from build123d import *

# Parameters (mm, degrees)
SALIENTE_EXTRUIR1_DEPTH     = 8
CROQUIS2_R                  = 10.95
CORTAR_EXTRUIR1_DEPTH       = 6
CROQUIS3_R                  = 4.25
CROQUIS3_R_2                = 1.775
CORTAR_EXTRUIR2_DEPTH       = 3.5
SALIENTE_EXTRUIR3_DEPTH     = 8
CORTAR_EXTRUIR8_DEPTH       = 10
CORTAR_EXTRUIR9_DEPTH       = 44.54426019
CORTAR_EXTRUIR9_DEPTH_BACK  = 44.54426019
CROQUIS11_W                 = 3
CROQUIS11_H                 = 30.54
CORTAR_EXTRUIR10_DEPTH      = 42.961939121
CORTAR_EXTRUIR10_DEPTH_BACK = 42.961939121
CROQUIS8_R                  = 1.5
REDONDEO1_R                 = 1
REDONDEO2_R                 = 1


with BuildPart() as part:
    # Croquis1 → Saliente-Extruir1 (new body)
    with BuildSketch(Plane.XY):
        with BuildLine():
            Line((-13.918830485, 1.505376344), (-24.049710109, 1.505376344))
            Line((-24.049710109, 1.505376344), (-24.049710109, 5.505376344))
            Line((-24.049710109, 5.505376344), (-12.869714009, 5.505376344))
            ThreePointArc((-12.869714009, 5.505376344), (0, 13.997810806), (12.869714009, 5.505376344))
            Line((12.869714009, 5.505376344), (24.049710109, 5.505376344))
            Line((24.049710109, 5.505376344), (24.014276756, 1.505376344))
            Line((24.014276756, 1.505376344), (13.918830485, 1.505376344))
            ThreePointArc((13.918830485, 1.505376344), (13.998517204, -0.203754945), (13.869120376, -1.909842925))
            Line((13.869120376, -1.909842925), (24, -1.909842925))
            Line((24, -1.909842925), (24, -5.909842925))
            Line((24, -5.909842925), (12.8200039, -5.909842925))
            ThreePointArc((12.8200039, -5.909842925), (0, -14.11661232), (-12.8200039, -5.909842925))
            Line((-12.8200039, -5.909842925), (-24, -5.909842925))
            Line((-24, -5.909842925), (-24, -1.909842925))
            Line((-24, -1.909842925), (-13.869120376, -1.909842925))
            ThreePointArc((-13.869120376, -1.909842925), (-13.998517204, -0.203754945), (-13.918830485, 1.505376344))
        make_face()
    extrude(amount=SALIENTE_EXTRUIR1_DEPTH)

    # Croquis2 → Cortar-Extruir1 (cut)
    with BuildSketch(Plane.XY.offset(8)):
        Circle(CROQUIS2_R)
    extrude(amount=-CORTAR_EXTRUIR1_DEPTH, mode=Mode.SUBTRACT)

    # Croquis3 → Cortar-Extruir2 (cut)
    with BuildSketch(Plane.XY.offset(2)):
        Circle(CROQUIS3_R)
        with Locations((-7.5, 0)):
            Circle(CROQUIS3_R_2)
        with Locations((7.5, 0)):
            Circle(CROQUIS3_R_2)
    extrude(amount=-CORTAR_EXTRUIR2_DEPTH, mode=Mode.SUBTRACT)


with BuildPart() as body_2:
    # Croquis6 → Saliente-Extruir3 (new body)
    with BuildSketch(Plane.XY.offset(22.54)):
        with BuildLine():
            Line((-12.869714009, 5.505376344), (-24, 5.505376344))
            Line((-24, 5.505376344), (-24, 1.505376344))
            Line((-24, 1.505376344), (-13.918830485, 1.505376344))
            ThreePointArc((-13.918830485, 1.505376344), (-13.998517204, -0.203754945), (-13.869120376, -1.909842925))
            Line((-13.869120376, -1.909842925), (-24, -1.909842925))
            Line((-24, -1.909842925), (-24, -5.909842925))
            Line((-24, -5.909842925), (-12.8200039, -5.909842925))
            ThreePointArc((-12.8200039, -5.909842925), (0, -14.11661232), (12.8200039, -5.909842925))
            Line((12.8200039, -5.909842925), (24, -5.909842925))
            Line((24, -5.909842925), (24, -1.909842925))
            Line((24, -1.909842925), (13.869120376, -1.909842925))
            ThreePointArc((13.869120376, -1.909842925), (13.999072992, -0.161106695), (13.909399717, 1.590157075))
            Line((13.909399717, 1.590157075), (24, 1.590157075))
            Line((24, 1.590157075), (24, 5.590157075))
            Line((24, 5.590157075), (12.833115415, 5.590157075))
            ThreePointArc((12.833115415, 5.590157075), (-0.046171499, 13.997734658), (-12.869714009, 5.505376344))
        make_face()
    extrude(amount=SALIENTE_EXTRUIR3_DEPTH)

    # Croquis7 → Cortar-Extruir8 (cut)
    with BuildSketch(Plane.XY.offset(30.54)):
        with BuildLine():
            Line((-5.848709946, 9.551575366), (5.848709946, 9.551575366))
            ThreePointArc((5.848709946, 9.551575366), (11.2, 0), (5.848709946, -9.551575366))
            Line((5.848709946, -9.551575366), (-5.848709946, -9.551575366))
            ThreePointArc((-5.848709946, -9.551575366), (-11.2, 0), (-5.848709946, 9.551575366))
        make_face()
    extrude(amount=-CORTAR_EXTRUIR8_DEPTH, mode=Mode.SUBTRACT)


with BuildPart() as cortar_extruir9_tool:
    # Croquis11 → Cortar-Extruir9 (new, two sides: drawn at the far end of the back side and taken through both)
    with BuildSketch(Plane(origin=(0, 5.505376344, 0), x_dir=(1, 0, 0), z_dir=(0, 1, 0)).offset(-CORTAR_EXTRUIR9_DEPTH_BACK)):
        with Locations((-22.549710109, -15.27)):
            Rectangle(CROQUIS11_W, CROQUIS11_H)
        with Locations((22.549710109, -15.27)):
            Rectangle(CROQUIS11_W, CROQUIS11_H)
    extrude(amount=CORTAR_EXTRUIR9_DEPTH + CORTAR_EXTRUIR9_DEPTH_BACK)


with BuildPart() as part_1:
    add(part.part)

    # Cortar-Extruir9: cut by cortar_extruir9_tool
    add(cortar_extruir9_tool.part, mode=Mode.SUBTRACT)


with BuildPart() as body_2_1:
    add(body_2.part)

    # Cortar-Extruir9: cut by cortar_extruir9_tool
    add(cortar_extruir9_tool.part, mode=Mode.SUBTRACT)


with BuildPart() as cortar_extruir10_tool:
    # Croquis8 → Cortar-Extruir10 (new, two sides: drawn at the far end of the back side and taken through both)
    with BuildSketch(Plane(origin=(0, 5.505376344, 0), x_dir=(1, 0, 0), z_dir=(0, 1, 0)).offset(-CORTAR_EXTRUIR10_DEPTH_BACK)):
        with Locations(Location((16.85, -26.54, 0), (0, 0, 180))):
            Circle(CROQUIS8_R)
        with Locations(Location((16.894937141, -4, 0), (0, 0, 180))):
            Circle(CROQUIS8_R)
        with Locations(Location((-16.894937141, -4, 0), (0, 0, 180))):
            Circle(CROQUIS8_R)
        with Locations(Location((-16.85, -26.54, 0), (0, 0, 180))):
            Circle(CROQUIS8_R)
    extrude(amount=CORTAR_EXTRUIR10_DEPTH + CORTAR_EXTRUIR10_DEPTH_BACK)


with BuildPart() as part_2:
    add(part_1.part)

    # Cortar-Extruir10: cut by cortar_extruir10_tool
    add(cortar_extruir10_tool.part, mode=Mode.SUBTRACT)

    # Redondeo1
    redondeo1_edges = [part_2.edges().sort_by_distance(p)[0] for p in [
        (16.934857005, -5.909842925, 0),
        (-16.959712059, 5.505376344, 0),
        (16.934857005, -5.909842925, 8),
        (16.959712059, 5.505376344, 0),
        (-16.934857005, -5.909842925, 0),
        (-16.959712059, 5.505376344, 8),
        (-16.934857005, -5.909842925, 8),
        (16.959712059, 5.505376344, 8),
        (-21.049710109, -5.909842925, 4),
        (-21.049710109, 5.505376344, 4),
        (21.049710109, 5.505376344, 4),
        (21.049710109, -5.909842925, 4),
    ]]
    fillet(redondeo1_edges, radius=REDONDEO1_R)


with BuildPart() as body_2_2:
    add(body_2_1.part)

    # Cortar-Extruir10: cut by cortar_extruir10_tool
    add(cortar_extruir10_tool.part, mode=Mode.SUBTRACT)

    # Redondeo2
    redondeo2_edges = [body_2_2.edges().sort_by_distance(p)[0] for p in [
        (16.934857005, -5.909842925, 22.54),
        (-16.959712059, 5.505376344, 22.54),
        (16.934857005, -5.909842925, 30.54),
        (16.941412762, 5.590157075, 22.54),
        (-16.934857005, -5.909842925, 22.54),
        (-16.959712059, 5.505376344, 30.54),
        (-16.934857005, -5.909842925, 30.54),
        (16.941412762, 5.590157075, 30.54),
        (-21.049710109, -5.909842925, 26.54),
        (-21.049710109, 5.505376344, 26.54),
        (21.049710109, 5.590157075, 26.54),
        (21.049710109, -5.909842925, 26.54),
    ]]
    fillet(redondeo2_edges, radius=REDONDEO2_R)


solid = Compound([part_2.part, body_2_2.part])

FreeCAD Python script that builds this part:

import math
import FreeCAD as App
import Part
import Sketcher
from FreeCAD import Vector


def edges_at(feature, points):
    """Names of the edges that pass closest to the given points."""
    edges = feature.Shape.Edges
    near = lambda p: min(range(len(edges)), key=lambda i: edges[i].distToShape(Part.Vertex(*p))[0])
    return sorted({f"Edge{near(p) + 1}" for p in points})

doc = App.newDocument("Part")
body = doc.addObject("PartDesign::Body", "Body")

# Sketch on XY plane
sketch1 = body.newObject("Sketcher::SketchObject", "Sketch")
sketch1.AttachmentSupport = (doc.getObject("XY_Plane"), [""])
sketch1.MapMode = "FlatFace"
sketch1.addGeometry([
    Part.LineSegment(Vector(-24.04971, 1.505376, 0), Vector(-13.91883, 1.505376, 0)),  # 0
    Part.ArcOfCircle(Part.Circle(Vector(0, 0, 0), Vector(0, 0, 1), 14), math.radians(173.827229), math.radians(187.840586)),  # 1
    Part.LineSegment(Vector(-13.86912, -1.909843, 0), Vector(-24, -1.909843, 0)),  # 2
    Part.LineSegment(Vector(-24, -1.909843, 0), Vector(-24, -5.909843, 0)),  # 3
    Part.LineSegment(Vector(-24, -5.909843, 0), Vector(-12.820004, -5.909843, 0)),  # 4
    Part.ArcOfCircle(Part.Circle(Vector(0, 0, 0), Vector(0, 0, 1), 14.116612), math.radians(-155.250958), math.radians(-24.749042)),  # 5
    Part.LineSegment(Vector(12.820004, -5.909843, 0), Vector(24, -5.909843, 0)),  # 6
    Part.LineSegment(Vector(24, -5.909843, 0), Vector(24, -1.909843, 0)),  # 7
    Part.LineSegment(Vector(24, -1.909843, 0), Vector(13.86912, -1.909843, 0)),  # 8
    Part.ArcOfCircle(Part.Circle(Vector(0, 0, 0), Vector(0, 0, 1), 14), math.radians(-7.840586), math.radians(6.172771)),  # 9
    Part.LineSegment(Vector(13.91883, 1.505376, 0), Vector(24.014277, 1.505376, 0)),  # 10
    Part.LineSegment(Vector(24.014277, 1.505376, 0), Vector(24.04971, 5.505376, 0)),  # 11
    Part.LineSegment(Vector(24.04971, 5.505376, 0), Vector(12.869714, 5.505376, 0)),  # 12
    Part.ArcOfCircle(Part.Circle(Vector(0, 0, 0), Vector(0, 0, 1), 13.997811), math.radians(23.160158), math.radians(156.839842)),  # 13
    Part.LineSegment(Vector(-12.869714, 5.505376, 0), Vector(-24.04971, 5.505376, 0)),  # 14
    Part.LineSegment(Vector(-24.04971, 5.505376, 0), Vector(-24.04971, 1.505376, 0)),  # 15
], False)
sketch1.addConstraint([
    Sketcher.Constraint("Coincident", 0, 2, 1, 1),
    Sketcher.Constraint("Coincident", 1, 2, 2, 1),
    Sketcher.Constraint("Coincident", 2, 2, 3, 1),
    Sketcher.Constraint("Coincident", 3, 2, 4, 1),
    Sketcher.Constraint("Coincident", 4, 2, 5, 1),
    Sketcher.Constraint("Coincident", 5, 2, 6, 1),
    Sketcher.Constraint("Coincident", 6, 2, 7, 1),
    Sketcher.Constraint("Coincident", 7, 2, 8, 1),
    Sketcher.Constraint("Coincident", 8, 2, 9, 1),
    Sketcher.Constraint("Coincident", 9, 2, 10, 1),
    Sketcher.Constraint("Coincident", 10, 2, 11, 1),
    Sketcher.Constraint("Coincident", 11, 2, 12, 1),
    Sketcher.Constraint("Coincident", 12, 2, 13, 1),
    Sketcher.Constraint("Coincident", 13, 2, 14, 1),
    Sketcher.Constraint("Coincident", 14, 2, 15, 1),
    Sketcher.Constraint("Coincident", 15, 2, 0, 1),
    Sketcher.Constraint("Horizontal", 0),
    Sketcher.Constraint("Horizontal", 2),
    Sketcher.Constraint("Vertical", 3),
    Sketcher.Constraint("Horizontal", 4),
    Sketcher.Constraint("Horizontal", 6),
    Sketcher.Constraint("Vertical", 7),
    Sketcher.Constraint("Horizontal", 8),
    Sketcher.Constraint("Horizontal", 10),
    Sketcher.Constraint("Horizontal", 12),
    Sketcher.Constraint("Horizontal", 14),
    Sketcher.Constraint("Vertical", 15),
    Sketcher.Constraint("Coincident", 1, 3, -1, 1),
    Sketcher.Constraint("Coincident", 5, 3, -1, 1),
    Sketcher.Constraint("Coincident", 9, 3, -1, 1),
    Sketcher.Constraint("Coincident", 13, 3, -1, 1),
    Sketcher.Constraint("Equal", 1, 9),
    Sketcher.Constraint("Symmetric", 3, 2, 6, 2, -2),
    Sketcher.Constraint("Symmetric", 11, 2, 14, 2, -2),
    Sketcher.Constraint("Horizontal", 2, 2, 7, 2),
    Sketcher.Constraint("Horizontal", 0, 2, 9, 2),
    Sketcher.Constraint("Equal", 0, 2),
    Sketcher.Constraint("Equal", 6, 12),
    Sketcher.Constraint("Equal", 7, 15),
    Sketcher.Constraint("Radius", 1, 14.0),
    Sketcher.Constraint("DistanceY", 3, 2, 3, 1, 4.0),
    Sketcher.Constraint("DistanceX", 2, 2, -1, 1, 24.0),
    Sketcher.Constraint("Radius", 13, 13.997811),
    Sketcher.Constraint("Radius", 5, 14.116612),
    Sketcher.Constraint("DistanceX", 0, 1, 0, 2, 10.13088),
    Sketcher.Constraint("DistanceX", 10, 1, 10, 2, 10.095446),
])
pad1 = body.newObject("PartDesign::Pad", "Pad")
pad1.Profile = sketch1
pad1.Length = 8

# Sketch on XY plane
sketch2 = body.newObject("Sketcher::SketchObject", "Sketch001")
sketch2.AttachmentSupport = (doc.getObject("XY_Plane"), [""])
sketch2.MapMode = "FlatFace"
sketch2.AttachmentOffset = App.Placement(Vector(0, 0, 8), App.Rotation())
sketch2.addGeometry(Part.Circle(Vector(0, 0, 0), Vector(0, 0, 1), 10.95), False)
sketch2.addConstraint([
    Sketcher.Constraint("Coincident", 0, 3, -1, 1),
    Sketcher.Constraint("Diameter", 0, 21.9),
])
pocket1 = body.newObject("PartDesign::Pocket", "Pocket")
pocket1.Profile = sketch2
pocket1.Length = 6

# Sketch on XY plane
sketch3 = body.newObject("Sketcher::SketchObject", "Sketch002")
sketch3.AttachmentSupport = (doc.getObject("XY_Plane"), [""])
sketch3.MapMode = "FlatFace"
sketch3.AttachmentOffset = App.Placement(Vector(0, 0, 2), App.Rotation())
sketch3.addGeometry([
    Part.Circle(Vector(0, 0, 0), Vector(0, 0, 1), 4.25),
    Part.Circle(Vector(-7.5, 0, 0), Vector(0, 0, 1), 1.775),
    Part.Circle(Vector(7.5, 0, 0), Vector(0, 0, 1), 1.775),
], False)
sketch3.addConstraint([
    Sketcher.Constraint("Coincident", 0, 3, -1, 1),
    Sketcher.Constraint("Equal", 1, 2),
    Sketcher.Constraint("Symmetric", 1, 3, 2, 3, -1, 1),
    Sketcher.Constraint("PointOnObject", 1, 3, -1),
    Sketcher.Constraint("Diameter", 0, 8.5),
    Sketcher.Constraint("Diameter", 1, 3.55),
    Sketcher.Constraint("DistanceX", 1, 3, 2, 3, 15.0),
])
pocket2 = body.newObject("PartDesign::Pocket", "Pocket001")
pocket2.Profile = sketch3
pocket2.Length = 3.5
body2 = doc.addObject("PartDesign::Body", "Body001")

# Sketch on XY plane
sketch4 = body2.newObject("Sketcher::SketchObject", "Sketch003")
sketch4.AttachmentSupport = (doc.getObject("XY_Plane001"), [""])
sketch4.MapMode = "FlatFace"
sketch4.AttachmentOffset = App.Placement(Vector(0, 0, 22.54), App.Rotation())
sketch4.addGeometry([
    Part.LineSegment(Vector(-12.869714, 5.505376, 0), Vector(-24, 5.505376, 0)),  # 0
    Part.LineSegment(Vector(-24, 5.505376, 0), Vector(-24, 1.505376, 0)),  # 1
    Part.LineSegment(Vector(-24, 1.505376, 0), Vector(-13.91883, 1.505376, 0)),  # 2
    Part.ArcOfCircle(Part.Circle(Vector(0, 0, 0), Vector(0, 0, 1), 14), math.radians(173.827229), math.radians(187.840586)),  # 3
    Part.LineSegment(Vector(-13.86912, -1.909843, 0), Vector(-24, -1.909843, 0)),  # 4
    Part.LineSegment(Vector(-24, -1.909843, 0), Vector(-24, -5.909843, 0)),  # 5
    Part.LineSegment(Vector(-24, -5.909843, 0), Vector(-12.820004, -5.909843, 0)),  # 6
    Part.ArcOfCircle(Part.Circle(Vector(0, 0, 0), Vector(0, 0, 1), 14.116612), math.radians(-155.250958), math.radians(-24.749042)),  # 7
    Part.LineSegment(Vector(12.820004, -5.909843, 0), Vector(24, -5.909843, 0)),  # 8
    Part.LineSegment(Vector(24, -5.909843, 0), Vector(24, -1.909843, 0)),  # 9
    Part.LineSegment(Vector(24, -1.909843, 0), Vector(13.86912, -1.909843, 0)),  # 10
    Part.ArcOfCircle(Part.Circle(Vector(0, 0, 0), Vector(0, 0, 1), 14), math.radians(-7.840586), math.radians(6.521881)),  # 11
    Part.LineSegment(Vector(13.9094, 1.590157, 0), Vector(24, 1.590157, 0)),  # 12
    Part.LineSegment(Vector(24, 1.590157, 0), Vector(24, 5.590157, 0)),  # 13
    Part.LineSegment(Vector(24, 5.590157, 0), Vector(12.833115, 5.590157, 0)),  # 14
    Part.ArcOfCircle(Part.Circle(Vector(0, 0, 0), Vector(0, 0, 1), 13.997811), math.radians(23.538136), math.radians(156.839842)),  # 15
], False)
sketch4.addConstraint([
    Sketcher.Constraint("Coincident", 0, 2, 1, 1),
    Sketcher.Constraint("Coincident", 1, 2, 2, 1),
    Sketcher.Constraint("Coincident", 2, 2, 3, 1),
    Sketcher.Constraint("Coincident", 3, 2, 4, 1),
    Sketcher.Constraint("Coincident", 4, 2, 5, 1),
    Sketcher.Constraint("Coincident", 5, 2, 6, 1),
    Sketcher.Constraint("Coincident", 6, 2, 7, 1),
    Sketcher.Constraint("Coincident", 7, 2, 8, 1),
    Sketcher.Constraint("Coincident", 8, 2, 9, 1),
    Sketcher.Constraint("Coincident", 9, 2, 10, 1),
    Sketcher.Constraint("Coincident", 10, 2, 11, 1),
    Sketcher.Constraint("Coincident", 11, 2, 12, 1),
    Sketcher.Constraint("Coincident", 12, 2, 13, 1),
    Sketcher.Constraint("Coincident", 13, 2, 14, 1),
    Sketcher.Constraint("Coincident", 14, 2, 15, 1),
    Sketcher.Constraint("Coincident", 15, 2, 0, 1),
    Sketcher.Constraint("Horizontal", 0),
    Sketcher.Constraint("Vertical", 1),
    Sketcher.Constraint("Horizontal", 2),
    Sketcher.Constraint("Horizontal", 4),
    Sketcher.Constraint("Vertical", 5),
    Sketcher.Constraint("Horizontal", 6),
    Sketcher.Constraint("Horizontal", 8),
    Sketcher.Constraint("Vertical", 9),
    Sketcher.Constraint("Horizontal", 10),
    Sketcher.Constraint("Horizontal", 12),
    Sketcher.Constraint("Vertical", 13),
    Sketcher.Constraint("Horizontal", 14),
    Sketcher.Constraint("Coincident", 3, 3, -1, 1),
    Sketcher.Constraint("Coincident", 7, 3, -1, 1),
    Sketcher.Constraint("Coincident", 11, 3, -1, 1),
    Sketcher.Constraint("Coincident", 15, 3, -1, 1),
    Sketcher.Constraint("Equal", 3, 11),
    Sketcher.Constraint("Symmetric", 5, 2, 8, 2, -2),
    Sketcher.Constraint("Horizontal", 4, 2, 9, 2),
    Sketcher.Constraint("Vertical", 1, 2, 4, 2),
    Sketcher.Constraint("Vertical", 9, 2, 12, 2),
    Sketcher.Constraint("Equal", 1, 5),
    Sketcher.Constraint("Equal", 9, 13),
    Sketcher.Constraint("Radius", 3, 14.0),
    Sketcher.Constraint("DistanceY", 1, 2, 1, 1, 4.0),
    Sketcher.Constraint("DistanceX", 0, 2, -1, 1, 24.0),
    Sketcher.Constraint("DistanceY", 10, 2, 11, 2, 3.5),
    Sketcher.Constraint("Radius", 15, 13.997811),
    Sketcher.Constraint("DistanceX", 12, 1, 12, 2, 10.0906),
    Sketcher.Constraint("Radius", 7, 14.116612),
    Sketcher.Constraint("DistanceX", 2, 1, 2, 2, 10.08117),
])
pad2 = body2.newObject("PartDesign::Pad", "Pad001")
pad2.Profile = sketch4
pad2.Length = 8

# Sketch on XY plane
sketch5 = body2.newObject("Sketcher::SketchObject", "Sketch004")
sketch5.AttachmentSupport = (doc.getObject("XY_Plane001"), [""])
sketch5.MapMode = "FlatFace"
sketch5.AttachmentOffset = App.Placement(Vector(0, 0, 30.54), App.Rotation())
sketch5.addGeometry([
    Part.LineSegment(Vector(5.84871, 9.551575, 0), Vector(-5.84871, 9.551575, 0)),
    Part.ArcOfCircle(Part.Circle(Vector(0, 0, 0), Vector(0, 0, 1), 11.2), math.radians(121.480359), math.radians(238.519641)),
    Part.LineSegment(Vector(-5.84871, -9.551575, 0), Vector(5.84871, -9.551575, 0)),
    Part.ArcOfCircle(Part.Circle(Vector(0, 0, 0), Vector(0, 0, 1), 11.2), math.radians(-58.519641), math.radians(58.519641)),
], False)
sketch5.addConstraint([
    Sketcher.Constraint("Coincident", 0, 2, 1, 1),
    Sketcher.Constraint("Coincident", 1, 2, 2, 1),
    Sketcher.Constraint("Coincident", 2, 2, 3, 1),
    Sketcher.Constraint("Coincident", 3, 2, 0, 1),
    Sketcher.Constraint("Horizontal", 0),
    Sketcher.Constraint("Horizontal", 2),
    Sketcher.Constraint("Coincident", 1, 3, -1, 1),
    Sketcher.Constraint("Coincident", 3, 3, -1, 1),
    Sketcher.Constraint("Equal", 1, 3),
    Sketcher.Constraint("Vertical", 0, 2, 1, 2),
    Sketcher.Constraint("Radius", 1, 11.2),
    Sketcher.Constraint("DistanceX", 0, 2, 0, 1, 11.69742),
])
pocket3 = body2.newObject("PartDesign::Pocket", "Pocket002")
pocket3.Profile = sketch5
pocket3.Length = 10
body3 = doc.addObject("PartDesign::Body", "Body002")
body3.AllowCompound = True

# Sketch on XZ plane
sketch6 = body3.newObject("Sketcher::SketchObject", "Sketch005")
sketch6.AttachmentSupport = (doc.getObject("XZ_Plane002"), [""])
sketch6.MapMode = "FlatFace"
sketch6.AttachmentOffset = App.Placement(Vector(0, 0, -5.505376), App.Rotation())
sketch6.addGeometry([
    Part.LineSegment(Vector(-24.04971, 0, 0), Vector(-24.04971, 30.54, 0)),  # 0
    Part.LineSegment(Vector(-24.04971, 30.54, 0), Vector(-21.04971, 30.54, 0)),  # 1
    Part.LineSegment(Vector(-21.04971, 30.54, 0), Vector(-21.04971, 0, 0)),  # 2
    Part.LineSegment(Vector(-21.04971, 0, 0), Vector(-24.04971, 0, 0)),  # 3
    Part.LineSegment(Vector(21.04971, 0, 0), Vector(21.04971, 30.54, 0)),  # 4
    Part.LineSegment(Vector(21.04971, 30.54, 0), Vector(24.04971, 30.54, 0)),  # 5
    Part.LineSegment(Vector(24.04971, 30.54, 0), Vector(24.04971, 0, 0)),  # 6
    Part.LineSegment(Vector(24.04971, 0, 0), Vector(21.04971, 0, 0)),  # 7
], False)
sketch6.addConstraint([
    Sketcher.Constraint("Coincident", 0, 2, 1, 1),
    Sketcher.Constraint("Coincident", 1, 2, 2, 1),
    Sketcher.Constraint("Coincident", 2, 2, 3, 1),
    Sketcher.Constraint("Coincident", 3, 2, 0, 1),
    Sketcher.Constraint("Coincident", 4, 2, 5, 1),
    Sketcher.Constraint("Coincident", 5, 2, 6, 1),
    Sketcher.Constraint("Coincident", 6, 2, 7, 1),
    Sketcher.Constraint("Coincident", 7, 2, 4, 1),
    Sketcher.Constraint("Vertical", 0),
    Sketcher.Constraint("Horizontal", 1),
    Sketcher.Constraint("Vertical", 2),
    Sketcher.Constraint("Horizontal", 3),
    Sketcher.Constraint("Vertical", 4),
    Sketcher.Constraint("Horizontal", 5),
    Sketcher.Constraint("Vertical", 6),
    Sketcher.Constraint("Horizontal", 7),
    Sketcher.Constraint("Symmetric", 3, 2, 6, 2, -1, 1),
    Sketcher.Constraint("Symmetric", 1, 2, 4, 2, -2),
    Sketcher.Constraint("PointOnObject", 2, 2, -1),
    Sketcher.Constraint("DistanceX", 1, 1, 1, 2, 3.0),
    Sketcher.Constraint("DistanceY", 0, 1, 0, 2, 30.54),
    Sketcher.Constraint("DistanceX", 0, 2, -1, 1, 24.04971),
])
pad3 = body3.newObject("PartDesign::Pad", "Pad002")
pad3.Profile = sketch6
pad3.Type = "TwoLengths"
pad3.Length = 44.54426
pad3.Length2 = 44.54426
pad3.Reversed = True
doc.recompute()

body4 = doc.addObject("PartDesign::Body", "Body003")
body4.BaseFeature = body3
boolean = body.newObject("PartDesign::Boolean", "Boolean")
boolean.Type = "Cut"
boolean.addObjects([body4])
doc.recompute()

boolean2 = body2.newObject("PartDesign::Boolean", "Boolean001")
boolean2.Type = "Cut"
boolean2.addObjects([body3])
body5 = doc.addObject("PartDesign::Body", "Body004")
body5.AllowCompound = True

# Sketch on XZ plane
sketch7 = body5.newObject("Sketcher::SketchObject", "Sketch006")
sketch7.AttachmentSupport = (doc.getObject("XZ_Plane004"), [""])
sketch7.MapMode = "FlatFace"
sketch7.AttachmentOffset = App.Placement(Vector(0, 0, -5.505376), App.Rotation())
sketch7.addGeometry([
    Part.Circle(Vector(16.85, 26.54, 0), Vector(0, 0, 1), 1.5),
    Part.Circle(Vector(16.894937, 4, 0), Vector(0, 0, 1), 1.5),
    Part.Circle(Vector(-16.894937, 4, 0), Vector(0, 0, 1), 1.5),
    Part.Circle(Vector(-16.85, 26.54, 0), Vector(0, 0, 1), 1.5),
], False)
sketch7.addConstraint([
    Sketcher.Constraint("Equal", 0, 1),
    Sketcher.Constraint("Equal", 1, 2),
    Sketcher.Constraint("Equal", 2, 3),
    Sketcher.Constraint("Symmetric", 1, 3, 2, 3, -2),
    Sketcher.Constraint("Symmetric", 0, 3, 3, 3, -2),
    Sketcher.Constraint("Diameter", 0, 3.0),
    Sketcher.Constraint("DistanceY", -1, 1, 1, 3, 4.0),
    Sketcher.Constraint("DistanceX", 3, 3, 0, 3, 33.7),
    Sketcher.Constraint("DistanceY", -1, 1, 0, 3, 26.54),
    Sketcher.Constraint("DistanceX", -1, 1, 1, 3, 16.894937),
])
pad4 = body5.newObject("PartDesign::Pad", "Pad003")
pad4.Profile = sketch7
pad4.Type = "TwoLengths"
pad4.Length = 42.961939
pad4.Length2 = 42.961939
pad4.Reversed = True
doc.recompute()

body6 = doc.addObject("PartDesign::Body", "Body005")
body6.BaseFeature = body5
boolean3 = body.newObject("PartDesign::Boolean", "Boolean002")
boolean3.Type = "Cut"
boolean3.addObjects([body6])
doc.recompute()

fillet = body.newObject("PartDesign::Fillet", "Fillet")
fillet.Base = (boolean3, edges_at(boolean3, [
    (16.935, -5.91, 0),
    (-16.96, 5.505, 0),
    (16.935, -5.91, 8),
    (16.96, 5.505, 0),
    (-16.935, -5.91, 0),
    (-16.96, 5.505, 8),
    (-16.935, -5.91, 8),
    (16.96, 5.505, 8),
    (-21.05, -5.91, 4),
    (-21.05, 5.505, 4),
    (21.05, 5.505, 4),
    (21.05, -5.91, 4),
]))
fillet.Radius = 1
doc.recompute()

boolean4 = body2.newObject("PartDesign::Boolean", "Boolean003")
boolean4.Type = "Cut"
boolean4.addObjects([body5])
doc.recompute()

fillet2 = body2.newObject("PartDesign::Fillet", "Fillet001")
fillet2.Base = (boolean4, edges_at(boolean4, [
    (16.935, -5.91, 22.54),
    (-16.96, 5.505, 22.54),
    (16.935, -5.91, 30.54),
    (16.941, 5.59, 22.54),
    (-16.935, -5.91, 22.54),
    (-16.96, 5.505, 30.54),
    (-16.935, -5.91, 30.54),
    (16.941, 5.59, 30.54),
    (-21.05, -5.91, 26.54),
    (-21.05, 5.505, 26.54),
    (21.05, 5.59, 26.54),
    (21.05, -5.91, 26.54),
]))
fillet2.Radius = 1

doc.recompute()
